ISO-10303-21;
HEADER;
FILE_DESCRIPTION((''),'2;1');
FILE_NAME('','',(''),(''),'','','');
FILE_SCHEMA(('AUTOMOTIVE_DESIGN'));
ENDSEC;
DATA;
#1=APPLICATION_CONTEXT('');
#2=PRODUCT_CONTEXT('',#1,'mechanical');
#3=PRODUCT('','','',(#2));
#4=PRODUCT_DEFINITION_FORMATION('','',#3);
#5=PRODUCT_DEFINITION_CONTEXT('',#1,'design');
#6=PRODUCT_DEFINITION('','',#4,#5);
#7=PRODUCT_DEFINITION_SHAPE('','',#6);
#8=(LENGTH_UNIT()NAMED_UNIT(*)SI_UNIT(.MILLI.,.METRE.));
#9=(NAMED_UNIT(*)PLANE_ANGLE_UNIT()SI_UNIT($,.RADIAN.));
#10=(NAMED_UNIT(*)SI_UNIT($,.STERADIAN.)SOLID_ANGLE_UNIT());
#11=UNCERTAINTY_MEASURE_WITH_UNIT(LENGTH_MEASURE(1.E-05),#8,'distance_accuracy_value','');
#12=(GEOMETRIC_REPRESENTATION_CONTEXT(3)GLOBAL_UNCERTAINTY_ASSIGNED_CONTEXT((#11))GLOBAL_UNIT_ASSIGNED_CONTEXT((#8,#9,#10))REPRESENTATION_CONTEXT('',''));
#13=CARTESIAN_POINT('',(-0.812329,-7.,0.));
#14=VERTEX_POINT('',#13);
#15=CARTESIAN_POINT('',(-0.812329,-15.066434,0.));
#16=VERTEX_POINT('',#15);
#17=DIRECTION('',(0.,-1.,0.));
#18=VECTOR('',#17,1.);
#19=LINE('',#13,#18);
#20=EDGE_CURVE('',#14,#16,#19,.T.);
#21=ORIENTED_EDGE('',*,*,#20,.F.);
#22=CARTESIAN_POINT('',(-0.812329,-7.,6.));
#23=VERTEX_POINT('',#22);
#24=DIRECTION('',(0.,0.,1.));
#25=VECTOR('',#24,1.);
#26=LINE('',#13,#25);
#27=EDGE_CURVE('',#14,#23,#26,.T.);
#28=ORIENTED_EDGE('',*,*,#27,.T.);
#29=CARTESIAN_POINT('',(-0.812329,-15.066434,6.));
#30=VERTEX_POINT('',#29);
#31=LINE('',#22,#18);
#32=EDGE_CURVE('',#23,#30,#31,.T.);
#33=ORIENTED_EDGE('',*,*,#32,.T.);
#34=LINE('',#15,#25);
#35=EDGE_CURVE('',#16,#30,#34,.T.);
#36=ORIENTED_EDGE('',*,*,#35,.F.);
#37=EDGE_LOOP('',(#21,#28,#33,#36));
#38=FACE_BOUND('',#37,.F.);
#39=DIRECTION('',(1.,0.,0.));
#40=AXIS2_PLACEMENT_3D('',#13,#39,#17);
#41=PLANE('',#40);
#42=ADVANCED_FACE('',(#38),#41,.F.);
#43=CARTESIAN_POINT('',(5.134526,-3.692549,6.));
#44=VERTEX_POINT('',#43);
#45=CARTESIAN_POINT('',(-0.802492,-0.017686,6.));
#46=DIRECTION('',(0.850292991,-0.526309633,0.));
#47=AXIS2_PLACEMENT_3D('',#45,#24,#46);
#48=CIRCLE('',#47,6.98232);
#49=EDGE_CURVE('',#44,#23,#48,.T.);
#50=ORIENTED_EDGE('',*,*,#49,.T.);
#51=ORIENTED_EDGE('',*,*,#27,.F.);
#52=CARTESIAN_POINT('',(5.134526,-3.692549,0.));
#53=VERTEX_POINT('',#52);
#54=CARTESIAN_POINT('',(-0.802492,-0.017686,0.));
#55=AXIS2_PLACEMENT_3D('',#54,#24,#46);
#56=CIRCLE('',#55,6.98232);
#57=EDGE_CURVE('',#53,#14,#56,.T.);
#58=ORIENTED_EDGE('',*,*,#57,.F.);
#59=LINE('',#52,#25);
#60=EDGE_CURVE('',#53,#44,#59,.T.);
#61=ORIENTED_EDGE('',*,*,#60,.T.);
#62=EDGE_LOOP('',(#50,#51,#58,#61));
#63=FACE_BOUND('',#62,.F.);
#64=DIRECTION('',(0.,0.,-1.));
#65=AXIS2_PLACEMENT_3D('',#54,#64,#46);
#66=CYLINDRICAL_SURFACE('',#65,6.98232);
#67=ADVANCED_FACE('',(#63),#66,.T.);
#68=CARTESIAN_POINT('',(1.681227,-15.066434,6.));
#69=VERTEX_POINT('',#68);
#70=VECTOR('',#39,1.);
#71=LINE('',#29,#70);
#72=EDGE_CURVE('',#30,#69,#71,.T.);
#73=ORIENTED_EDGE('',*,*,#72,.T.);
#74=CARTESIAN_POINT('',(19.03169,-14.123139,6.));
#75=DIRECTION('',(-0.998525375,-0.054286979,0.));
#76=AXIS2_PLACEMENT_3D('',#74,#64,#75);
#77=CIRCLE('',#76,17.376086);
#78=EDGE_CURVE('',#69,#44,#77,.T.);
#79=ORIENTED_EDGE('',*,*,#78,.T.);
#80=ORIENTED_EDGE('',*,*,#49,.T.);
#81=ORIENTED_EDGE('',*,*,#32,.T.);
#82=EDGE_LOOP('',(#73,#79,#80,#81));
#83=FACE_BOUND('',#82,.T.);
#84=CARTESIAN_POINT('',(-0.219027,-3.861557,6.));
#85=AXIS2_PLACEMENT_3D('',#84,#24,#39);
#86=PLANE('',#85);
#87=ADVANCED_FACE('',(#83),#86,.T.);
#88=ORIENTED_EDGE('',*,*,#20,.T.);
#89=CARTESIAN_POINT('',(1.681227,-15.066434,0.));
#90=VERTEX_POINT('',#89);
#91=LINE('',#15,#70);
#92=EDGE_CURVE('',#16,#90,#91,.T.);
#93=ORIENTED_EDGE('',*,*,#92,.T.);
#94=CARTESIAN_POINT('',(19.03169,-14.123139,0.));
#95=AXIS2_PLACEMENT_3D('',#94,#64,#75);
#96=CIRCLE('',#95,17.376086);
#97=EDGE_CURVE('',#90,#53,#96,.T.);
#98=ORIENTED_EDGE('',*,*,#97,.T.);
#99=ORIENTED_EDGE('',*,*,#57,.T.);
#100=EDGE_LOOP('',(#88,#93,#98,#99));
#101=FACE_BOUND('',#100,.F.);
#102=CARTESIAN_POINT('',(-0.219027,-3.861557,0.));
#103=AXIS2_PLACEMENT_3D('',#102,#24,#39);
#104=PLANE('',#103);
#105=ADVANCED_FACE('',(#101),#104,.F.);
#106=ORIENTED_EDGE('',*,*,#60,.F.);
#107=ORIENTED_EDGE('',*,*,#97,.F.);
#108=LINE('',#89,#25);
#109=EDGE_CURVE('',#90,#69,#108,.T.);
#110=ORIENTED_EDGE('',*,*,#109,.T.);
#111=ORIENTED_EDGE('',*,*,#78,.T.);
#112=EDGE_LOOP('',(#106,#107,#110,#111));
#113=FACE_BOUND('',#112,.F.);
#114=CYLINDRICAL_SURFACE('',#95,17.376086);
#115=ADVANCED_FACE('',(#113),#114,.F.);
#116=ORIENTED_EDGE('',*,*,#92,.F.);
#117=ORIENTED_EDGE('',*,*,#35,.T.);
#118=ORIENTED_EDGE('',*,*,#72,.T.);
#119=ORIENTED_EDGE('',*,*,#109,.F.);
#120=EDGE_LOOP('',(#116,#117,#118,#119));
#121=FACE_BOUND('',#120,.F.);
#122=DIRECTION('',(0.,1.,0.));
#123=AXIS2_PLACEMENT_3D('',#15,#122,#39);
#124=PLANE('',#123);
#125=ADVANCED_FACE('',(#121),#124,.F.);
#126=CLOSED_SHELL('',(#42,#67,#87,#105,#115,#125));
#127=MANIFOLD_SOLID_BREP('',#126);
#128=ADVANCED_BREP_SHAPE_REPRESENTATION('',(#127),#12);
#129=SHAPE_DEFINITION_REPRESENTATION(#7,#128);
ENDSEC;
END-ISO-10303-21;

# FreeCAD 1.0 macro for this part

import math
import FreeCAD as App
import Part
import Sketcher

doc = App.newDocument("Part")
body = doc.addObject("PartDesign::Body", "Body")

# Sketch on XY plane
sketch1 = doc.addObject("Sketcher::SketchObject", "Sketch")
body.addObject(sketch1)
sketch1.AttachmentSupport = (doc.XY_Plane, [""])
sketch1.MapMode = "FlatFace"
sketch1.addGeometry(Part.ArcOfCircle(Part.Circle(App.Vector(-0.802492, -0.017686, 0), App.Vector(0, 0, 1), 6.98232), math.radians(-31.756449), math.radians(269.91928)), False)
sketch1.addGeometry(Part.LineSegment(App.Vector(-0.812329, -7, 0), App.Vector(-0.812329, -15.066434, 0)), False)
sketch1.addGeometry(Part.LineSegment(App.Vector(-0.812329, -15.066434, 0), App.Vector(1.681227, -15.066434, 0)), False)
sketch1.addGeometry(Part.ArcOfCircle(Part.Circle(App.Vector(19.03169, -14.123139, 0), App.Vector(0, 0, 1), 17.376086), math.radians(143.109746), math.radians(183.111945)), False)
sketch1.addConstraint(Sketcher.Constraint("Coincident", 0, 2, 1, 1))
sketch1.addConstraint(Sketcher.Constraint("Coincident", 1, 2, 2, 1))
sketch1.addConstraint(Sketcher.Constraint("Coincident", 2, 2, 3, 2))
sketch1.addConstraint(Sketcher.Constraint("Coincident", 3, 1, 0, 1))
sketch1.addConstraint(Sketcher.Constraint("Vertical", 1))
sketch1.addConstraint(Sketcher.Constraint("Horizontal", 2))
sketch1.addConstraint(Sketcher.Constraint("DistanceY", 0, 2, -1, 1, 7.0))
sketch1.addConstraint(Sketcher.Constraint("Radius", 0, 6.98232))
sketch1.addConstraint(Sketcher.Constraint("Radius", 3, 17.376086))
sketch1.addConstraint(Sketcher.Constraint("DistanceX", 2, 2, 3, 1, 3.453299))
sketch1.addConstraint(Sketcher.Constraint("DistanceX", 2, 1, 2, 2, 2.493556))
sketch1.addConstraint(Sketcher.Constraint("DistanceY", 1, 2, 1, 1, 8.066434))
sketch1.addConstraint(Sketcher.Constraint("DistanceX", -1, 1, 3, 3, 19.03169))
sketch1.addConstraint(Sketcher.Constraint("DistanceY", 3, 3, -1, 1, 14.123139))
pad1 = doc.addObject("PartDesign::Pad", "Pad")
body.addObject(pad1)
pad1.Profile = sketch1
pad1.Length = 6

doc.recompute()
